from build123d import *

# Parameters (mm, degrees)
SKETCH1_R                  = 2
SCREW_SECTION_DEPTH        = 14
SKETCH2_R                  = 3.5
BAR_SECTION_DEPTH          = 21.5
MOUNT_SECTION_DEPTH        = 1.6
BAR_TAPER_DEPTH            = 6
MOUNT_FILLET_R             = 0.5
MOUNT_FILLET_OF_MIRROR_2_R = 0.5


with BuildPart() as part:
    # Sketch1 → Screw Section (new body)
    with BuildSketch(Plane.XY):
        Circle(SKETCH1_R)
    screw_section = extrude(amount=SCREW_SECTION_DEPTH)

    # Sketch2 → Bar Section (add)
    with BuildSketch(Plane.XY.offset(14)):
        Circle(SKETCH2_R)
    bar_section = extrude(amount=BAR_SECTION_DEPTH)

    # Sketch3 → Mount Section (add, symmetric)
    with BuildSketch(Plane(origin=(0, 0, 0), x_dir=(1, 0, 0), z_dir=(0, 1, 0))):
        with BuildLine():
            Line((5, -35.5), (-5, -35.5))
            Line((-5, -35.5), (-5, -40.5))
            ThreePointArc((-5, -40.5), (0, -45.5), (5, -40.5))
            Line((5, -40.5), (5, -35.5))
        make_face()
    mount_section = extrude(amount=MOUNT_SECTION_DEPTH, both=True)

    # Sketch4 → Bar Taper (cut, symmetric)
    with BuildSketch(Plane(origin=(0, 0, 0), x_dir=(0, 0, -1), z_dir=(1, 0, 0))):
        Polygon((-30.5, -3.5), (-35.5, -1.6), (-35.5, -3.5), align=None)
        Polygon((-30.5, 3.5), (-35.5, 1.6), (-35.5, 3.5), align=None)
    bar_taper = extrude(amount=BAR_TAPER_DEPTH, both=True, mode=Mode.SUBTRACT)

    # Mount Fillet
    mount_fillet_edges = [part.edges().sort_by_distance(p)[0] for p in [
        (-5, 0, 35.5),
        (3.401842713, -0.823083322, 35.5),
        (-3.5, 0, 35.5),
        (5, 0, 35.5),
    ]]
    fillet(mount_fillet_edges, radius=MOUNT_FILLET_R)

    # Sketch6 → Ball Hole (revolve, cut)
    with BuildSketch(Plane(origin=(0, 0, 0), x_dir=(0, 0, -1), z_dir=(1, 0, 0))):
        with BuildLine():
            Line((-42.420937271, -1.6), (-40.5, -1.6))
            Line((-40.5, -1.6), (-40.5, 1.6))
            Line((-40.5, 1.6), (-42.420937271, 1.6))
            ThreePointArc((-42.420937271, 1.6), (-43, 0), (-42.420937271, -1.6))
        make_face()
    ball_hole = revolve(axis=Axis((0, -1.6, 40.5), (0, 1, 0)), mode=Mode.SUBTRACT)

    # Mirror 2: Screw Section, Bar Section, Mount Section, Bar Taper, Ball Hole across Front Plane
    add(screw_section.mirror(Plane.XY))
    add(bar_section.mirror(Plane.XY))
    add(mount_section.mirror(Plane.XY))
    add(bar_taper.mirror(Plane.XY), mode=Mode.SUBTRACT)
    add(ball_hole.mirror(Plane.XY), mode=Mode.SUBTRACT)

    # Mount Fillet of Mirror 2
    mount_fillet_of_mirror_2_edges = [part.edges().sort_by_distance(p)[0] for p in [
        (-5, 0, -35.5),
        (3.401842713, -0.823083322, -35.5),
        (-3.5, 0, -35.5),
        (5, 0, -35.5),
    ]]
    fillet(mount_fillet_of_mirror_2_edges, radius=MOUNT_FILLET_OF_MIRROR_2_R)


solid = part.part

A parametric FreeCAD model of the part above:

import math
import FreeCAD as App
import Part
import Sketcher

V = App.Vector


def edges_at(feature, points):
    """Names of the edges that pass closest to the given points."""
    edges = feature.Shape.Edges
    near = lambda p: min(range(len(edges)), key=lambda i: edges[i].distToShape(Part.Vertex(*p))[0])
    return sorted({f"Edge{near(p) + 1}" for p in points})


def add_polygon(sketch, points):
    """Adds a closed chain of lines whose ends are joined by coincident constraints."""
    first, n = sketch.GeometryCount, len(points)
    for a, b in zip(points, points[1:] + points[:1]):
        sketch.addGeometry(Part.LineSegment(App.Vector(*a, 0), App.Vector(*b, 0)), False)
    for i in range(n):
        sketch.addConstraint(Sketcher.Constraint("Coincident", first + i, 2, first + (i + 1) % n, 1))

doc = App.newDocument("Part")
body = doc.addObject("PartDesign::Body", "Body")

# Sketch on XY plane
sketch1 = body.newObject("Sketcher::SketchObject", "Sketch")
sketch1.AttachmentSupport = (doc.getObject("XY_Plane"), [""])
sketch1.MapMode = "FlatFace"
sketch1.addGeometry(Part.Circle(V(0, 0, 0), V(0, 0, 1), 2), False)
sketch1.addConstraint([
    Sketcher.Constraint("Coincident", 0, 3, -1, 1),
    Sketcher.Constraint("Diameter", 0, 4.0),
])
pad1 = body.newObject("PartDesign::Pad", "Pad")
pad1.Profile = sketch1
pad1.Length = 14

# Sketch on XY plane
sketch2 = body.newObject("Sketcher::SketchObject", "Sketch001")
sketch2.AttachmentSupport = (doc.getObject("XY_Plane"), [""])
sketch2.MapMode = "FlatFace"
sketch2.AttachmentOffset = App.Placement(V(0, 0, 14), App.Rotation())
sketch2.addGeometry(Part.Circle(V(0, 0, 0), V(0, 0, 1), 3.5), False)
sketch2.addConstraint([
    Sketcher.Constraint("Coincident", 0, 3, -1, 1),
    Sketcher.Constraint("Diameter", 0, 7.0),
])
pad2 = body.newObject("PartDesign::Pad", "Pad001")
pad2.Profile = sketch2
pad2.Length = 21.5

# Sketch on XZ plane
sketch3 = body.newObject("Sketcher::SketchObject", "Sketch002")
sketch3.AttachmentSupport = (doc.getObject("XZ_Plane"), [""])
sketch3.MapMode = "FlatFace"
sketch3.addGeometry([
    Part.LineSegment(V(5, 36, 0), V(-5, 36, 0)),
    Part.LineSegment(V(-5, 36, 0), V(-5, 40, 0)),
    Part.ArcOfCircle(Part.Circle(V(0, 40, 0), V(0, 0, 1), 5), math.radians(0), math.radians(180)),
    Part.LineSegment(V(5, 40, 0), V(5, 36, 0)),
], False)
sketch3.addConstraint([
    Sketcher.Constraint("Coincident", 0, 2, 1, 1),
    Sketcher.Constraint("Tangent", 1, 2, 2, 2),
    Sketcher.Constraint("Tangent", 2, 1, 3, 1),
    Sketcher.Constraint("Coincident", 3, 2, 0, 1),
    Sketcher.Constraint("Horizontal", 0),
    Sketcher.Constraint("Vertical", 1),
    Sketcher.Constraint("Vertical", 3),
    Sketcher.Constraint("PointOnObject", 2, 3, -2),
    Sketcher.Constraint("Radius", 2, 5.0),
    Sketcher.Constraint("DistanceY", 1, 1, 1, 2, 5.0),
    Sketcher.Constraint("DistanceY", -1, 1, 2, 3, 40.5),
])
pad3 = body.newObject("PartDesign::Pad", "Pad002")
pad3.Profile = sketch3
pad3.Length = 3.2
pad3.Midplane = True

# Sketch on YZ plane
sketch4 = body.newObject("Sketcher::SketchObject", "Sketch003")
sketch4.AttachmentSupport = (doc.getObject("YZ_Plane"), [""])
sketch4.MapMode = "FlatFace"
add_polygon(sketch4, [(-3.5, 30.5), (-1.6, 35.5), (-3.5, 35.5)])  # lines 0-2
add_polygon(sketch4, [(1.6, 35.5), (3.5, 30.5), (3.5, 35.5)])  # lines 3-5
sketch4.addConstraint([
    Sketcher.Constraint("Horizontal", 1),
    Sketcher.Constraint("Vertical", 2),
    Sketcher.Constraint("Vertical", 4),
    Sketcher.Constraint("Horizontal", 5),
    Sketcher.Constraint("Symmetric", 2, 2, 3, 2, -2),
    Sketcher.Constraint("Symmetric", 0, 2, 5, 2, -2),
    Sketcher.Constraint("DistanceY", 2, 2, 2, 1, 5.0),
    Sketcher.Constraint("DistanceX", 1, 2, 1, 1, 1.9),
    Sketcher.Constraint("DistanceX", 2, 2, 3, 2, 7.0),
    Sketcher.Constraint("DistanceY", -1, 1, 0, 2, 35.5),
])
pocket1 = body.newObject("PartDesign::Pocket", "Pocket")
pocket1.Profile = sketch4
pocket1.Length = 12
pocket1.Midplane = True
doc.recompute()

fillet = body.newObject("PartDesign::Fillet", "Fillet")
fillet.Base = (pocket1, edges_at(pocket1, [
    (-5, 0, 35.5),
    (3.402, -0.823, 35.5),
    (-3.5, 0, 35.5),
    (5, 0, 35.5),
]))
fillet.Radius = 0.5

# Sketch on YZ plane
sketch5 = body.newObject("Sketcher::SketchObject", "Sketch004")
sketch5.AttachmentSupport = (doc.getObject("YZ_Plane"), [""])
sketch5.MapMode = "FlatFace"
sketch5.addGeometry([
    Part.LineSegment(V(-1.6, 42.4, 0), V(-1.6, 40.5, 0)),
    Part.LineSegment(V(-1.6, 40.5, 0), V(1.6, 40.5, 0)),
    Part.LineSegment(V(1.6, 40.5, 0), V(1.6, 42.4, 0)),
    Part.ArcOfCircle(Part.Circle(V(0, 40.5, 0), V(0, 0, 1), 2.5), math.radians(50), math.radians(130)),
], False)
sketch5.addGeometry(Part.LineSegment(V(-1.6, 40.5, 0), V(1.6, 40.5, 0)), True)  # axis
sketch5.addConstraint([
    Sketcher.Constraint("Coincident", 0, 2, 1, 1),
    Sketcher.Constraint("Coincident", 1, 2, 2, 1),
    Sketcher.Constraint("Coincident", 2, 2, 3, 1),
    Sketcher.Constraint("Coincident", 3, 2, 0, 1),
    Sketcher.Constraint("Vertical", 0),
    Sketcher.Constraint("Horizontal", 1),
    Sketcher.Constraint("Vertical", 2),
    Sketcher.Constraint("Horizontal", 4),
    Sketcher.Constraint("Coincident", 4, 1, 0, 2),
    Sketcher.Constraint("Symmetric", 2, 2, 3, 2, -2),
    Sketcher.Constraint("Horizontal", 3, 3, 0, 2),
    Sketcher.Constraint("Vertical", 2, 2, 4, 2),
    Sketcher.Constraint("Radius", 3, 2.5),
    Sketcher.Constraint("DistanceX", 1, 1, 1, 2, 3.2),
    Sketcher.Constraint("DistanceY", -1, 1, 3, 3, 40.5),
])
groove = body.newObject("PartDesign::Groove", "Groove")
groove.Profile = sketch5
groove.ReferenceAxis = (sketch5, ["Axis0"])
groove.Angle = 360
doc.recompute()

mirrored = body.newObject("PartDesign::Mirrored", "Mirrored")
mirrored.Originals = [pad1, pad2, pad3, pocket1, groove]
mirrored.MirrorPlane = (doc.getObject("XY_Plane"), [""])
body.Tip = mirrored
doc.recompute()

fillet2 = body.newObject("PartDesign::Fillet", "Fillet001")
fillet2.Base = (mirrored, edges_at(mirrored, [
    (-5, 0, -35.5),
    (3.402, -0.823, -35.5),
    (-3.5, 0, -35.5),
    (5, 0, -35.5),
]))
fillet2.Radius = 0.5

doc.recompute()
